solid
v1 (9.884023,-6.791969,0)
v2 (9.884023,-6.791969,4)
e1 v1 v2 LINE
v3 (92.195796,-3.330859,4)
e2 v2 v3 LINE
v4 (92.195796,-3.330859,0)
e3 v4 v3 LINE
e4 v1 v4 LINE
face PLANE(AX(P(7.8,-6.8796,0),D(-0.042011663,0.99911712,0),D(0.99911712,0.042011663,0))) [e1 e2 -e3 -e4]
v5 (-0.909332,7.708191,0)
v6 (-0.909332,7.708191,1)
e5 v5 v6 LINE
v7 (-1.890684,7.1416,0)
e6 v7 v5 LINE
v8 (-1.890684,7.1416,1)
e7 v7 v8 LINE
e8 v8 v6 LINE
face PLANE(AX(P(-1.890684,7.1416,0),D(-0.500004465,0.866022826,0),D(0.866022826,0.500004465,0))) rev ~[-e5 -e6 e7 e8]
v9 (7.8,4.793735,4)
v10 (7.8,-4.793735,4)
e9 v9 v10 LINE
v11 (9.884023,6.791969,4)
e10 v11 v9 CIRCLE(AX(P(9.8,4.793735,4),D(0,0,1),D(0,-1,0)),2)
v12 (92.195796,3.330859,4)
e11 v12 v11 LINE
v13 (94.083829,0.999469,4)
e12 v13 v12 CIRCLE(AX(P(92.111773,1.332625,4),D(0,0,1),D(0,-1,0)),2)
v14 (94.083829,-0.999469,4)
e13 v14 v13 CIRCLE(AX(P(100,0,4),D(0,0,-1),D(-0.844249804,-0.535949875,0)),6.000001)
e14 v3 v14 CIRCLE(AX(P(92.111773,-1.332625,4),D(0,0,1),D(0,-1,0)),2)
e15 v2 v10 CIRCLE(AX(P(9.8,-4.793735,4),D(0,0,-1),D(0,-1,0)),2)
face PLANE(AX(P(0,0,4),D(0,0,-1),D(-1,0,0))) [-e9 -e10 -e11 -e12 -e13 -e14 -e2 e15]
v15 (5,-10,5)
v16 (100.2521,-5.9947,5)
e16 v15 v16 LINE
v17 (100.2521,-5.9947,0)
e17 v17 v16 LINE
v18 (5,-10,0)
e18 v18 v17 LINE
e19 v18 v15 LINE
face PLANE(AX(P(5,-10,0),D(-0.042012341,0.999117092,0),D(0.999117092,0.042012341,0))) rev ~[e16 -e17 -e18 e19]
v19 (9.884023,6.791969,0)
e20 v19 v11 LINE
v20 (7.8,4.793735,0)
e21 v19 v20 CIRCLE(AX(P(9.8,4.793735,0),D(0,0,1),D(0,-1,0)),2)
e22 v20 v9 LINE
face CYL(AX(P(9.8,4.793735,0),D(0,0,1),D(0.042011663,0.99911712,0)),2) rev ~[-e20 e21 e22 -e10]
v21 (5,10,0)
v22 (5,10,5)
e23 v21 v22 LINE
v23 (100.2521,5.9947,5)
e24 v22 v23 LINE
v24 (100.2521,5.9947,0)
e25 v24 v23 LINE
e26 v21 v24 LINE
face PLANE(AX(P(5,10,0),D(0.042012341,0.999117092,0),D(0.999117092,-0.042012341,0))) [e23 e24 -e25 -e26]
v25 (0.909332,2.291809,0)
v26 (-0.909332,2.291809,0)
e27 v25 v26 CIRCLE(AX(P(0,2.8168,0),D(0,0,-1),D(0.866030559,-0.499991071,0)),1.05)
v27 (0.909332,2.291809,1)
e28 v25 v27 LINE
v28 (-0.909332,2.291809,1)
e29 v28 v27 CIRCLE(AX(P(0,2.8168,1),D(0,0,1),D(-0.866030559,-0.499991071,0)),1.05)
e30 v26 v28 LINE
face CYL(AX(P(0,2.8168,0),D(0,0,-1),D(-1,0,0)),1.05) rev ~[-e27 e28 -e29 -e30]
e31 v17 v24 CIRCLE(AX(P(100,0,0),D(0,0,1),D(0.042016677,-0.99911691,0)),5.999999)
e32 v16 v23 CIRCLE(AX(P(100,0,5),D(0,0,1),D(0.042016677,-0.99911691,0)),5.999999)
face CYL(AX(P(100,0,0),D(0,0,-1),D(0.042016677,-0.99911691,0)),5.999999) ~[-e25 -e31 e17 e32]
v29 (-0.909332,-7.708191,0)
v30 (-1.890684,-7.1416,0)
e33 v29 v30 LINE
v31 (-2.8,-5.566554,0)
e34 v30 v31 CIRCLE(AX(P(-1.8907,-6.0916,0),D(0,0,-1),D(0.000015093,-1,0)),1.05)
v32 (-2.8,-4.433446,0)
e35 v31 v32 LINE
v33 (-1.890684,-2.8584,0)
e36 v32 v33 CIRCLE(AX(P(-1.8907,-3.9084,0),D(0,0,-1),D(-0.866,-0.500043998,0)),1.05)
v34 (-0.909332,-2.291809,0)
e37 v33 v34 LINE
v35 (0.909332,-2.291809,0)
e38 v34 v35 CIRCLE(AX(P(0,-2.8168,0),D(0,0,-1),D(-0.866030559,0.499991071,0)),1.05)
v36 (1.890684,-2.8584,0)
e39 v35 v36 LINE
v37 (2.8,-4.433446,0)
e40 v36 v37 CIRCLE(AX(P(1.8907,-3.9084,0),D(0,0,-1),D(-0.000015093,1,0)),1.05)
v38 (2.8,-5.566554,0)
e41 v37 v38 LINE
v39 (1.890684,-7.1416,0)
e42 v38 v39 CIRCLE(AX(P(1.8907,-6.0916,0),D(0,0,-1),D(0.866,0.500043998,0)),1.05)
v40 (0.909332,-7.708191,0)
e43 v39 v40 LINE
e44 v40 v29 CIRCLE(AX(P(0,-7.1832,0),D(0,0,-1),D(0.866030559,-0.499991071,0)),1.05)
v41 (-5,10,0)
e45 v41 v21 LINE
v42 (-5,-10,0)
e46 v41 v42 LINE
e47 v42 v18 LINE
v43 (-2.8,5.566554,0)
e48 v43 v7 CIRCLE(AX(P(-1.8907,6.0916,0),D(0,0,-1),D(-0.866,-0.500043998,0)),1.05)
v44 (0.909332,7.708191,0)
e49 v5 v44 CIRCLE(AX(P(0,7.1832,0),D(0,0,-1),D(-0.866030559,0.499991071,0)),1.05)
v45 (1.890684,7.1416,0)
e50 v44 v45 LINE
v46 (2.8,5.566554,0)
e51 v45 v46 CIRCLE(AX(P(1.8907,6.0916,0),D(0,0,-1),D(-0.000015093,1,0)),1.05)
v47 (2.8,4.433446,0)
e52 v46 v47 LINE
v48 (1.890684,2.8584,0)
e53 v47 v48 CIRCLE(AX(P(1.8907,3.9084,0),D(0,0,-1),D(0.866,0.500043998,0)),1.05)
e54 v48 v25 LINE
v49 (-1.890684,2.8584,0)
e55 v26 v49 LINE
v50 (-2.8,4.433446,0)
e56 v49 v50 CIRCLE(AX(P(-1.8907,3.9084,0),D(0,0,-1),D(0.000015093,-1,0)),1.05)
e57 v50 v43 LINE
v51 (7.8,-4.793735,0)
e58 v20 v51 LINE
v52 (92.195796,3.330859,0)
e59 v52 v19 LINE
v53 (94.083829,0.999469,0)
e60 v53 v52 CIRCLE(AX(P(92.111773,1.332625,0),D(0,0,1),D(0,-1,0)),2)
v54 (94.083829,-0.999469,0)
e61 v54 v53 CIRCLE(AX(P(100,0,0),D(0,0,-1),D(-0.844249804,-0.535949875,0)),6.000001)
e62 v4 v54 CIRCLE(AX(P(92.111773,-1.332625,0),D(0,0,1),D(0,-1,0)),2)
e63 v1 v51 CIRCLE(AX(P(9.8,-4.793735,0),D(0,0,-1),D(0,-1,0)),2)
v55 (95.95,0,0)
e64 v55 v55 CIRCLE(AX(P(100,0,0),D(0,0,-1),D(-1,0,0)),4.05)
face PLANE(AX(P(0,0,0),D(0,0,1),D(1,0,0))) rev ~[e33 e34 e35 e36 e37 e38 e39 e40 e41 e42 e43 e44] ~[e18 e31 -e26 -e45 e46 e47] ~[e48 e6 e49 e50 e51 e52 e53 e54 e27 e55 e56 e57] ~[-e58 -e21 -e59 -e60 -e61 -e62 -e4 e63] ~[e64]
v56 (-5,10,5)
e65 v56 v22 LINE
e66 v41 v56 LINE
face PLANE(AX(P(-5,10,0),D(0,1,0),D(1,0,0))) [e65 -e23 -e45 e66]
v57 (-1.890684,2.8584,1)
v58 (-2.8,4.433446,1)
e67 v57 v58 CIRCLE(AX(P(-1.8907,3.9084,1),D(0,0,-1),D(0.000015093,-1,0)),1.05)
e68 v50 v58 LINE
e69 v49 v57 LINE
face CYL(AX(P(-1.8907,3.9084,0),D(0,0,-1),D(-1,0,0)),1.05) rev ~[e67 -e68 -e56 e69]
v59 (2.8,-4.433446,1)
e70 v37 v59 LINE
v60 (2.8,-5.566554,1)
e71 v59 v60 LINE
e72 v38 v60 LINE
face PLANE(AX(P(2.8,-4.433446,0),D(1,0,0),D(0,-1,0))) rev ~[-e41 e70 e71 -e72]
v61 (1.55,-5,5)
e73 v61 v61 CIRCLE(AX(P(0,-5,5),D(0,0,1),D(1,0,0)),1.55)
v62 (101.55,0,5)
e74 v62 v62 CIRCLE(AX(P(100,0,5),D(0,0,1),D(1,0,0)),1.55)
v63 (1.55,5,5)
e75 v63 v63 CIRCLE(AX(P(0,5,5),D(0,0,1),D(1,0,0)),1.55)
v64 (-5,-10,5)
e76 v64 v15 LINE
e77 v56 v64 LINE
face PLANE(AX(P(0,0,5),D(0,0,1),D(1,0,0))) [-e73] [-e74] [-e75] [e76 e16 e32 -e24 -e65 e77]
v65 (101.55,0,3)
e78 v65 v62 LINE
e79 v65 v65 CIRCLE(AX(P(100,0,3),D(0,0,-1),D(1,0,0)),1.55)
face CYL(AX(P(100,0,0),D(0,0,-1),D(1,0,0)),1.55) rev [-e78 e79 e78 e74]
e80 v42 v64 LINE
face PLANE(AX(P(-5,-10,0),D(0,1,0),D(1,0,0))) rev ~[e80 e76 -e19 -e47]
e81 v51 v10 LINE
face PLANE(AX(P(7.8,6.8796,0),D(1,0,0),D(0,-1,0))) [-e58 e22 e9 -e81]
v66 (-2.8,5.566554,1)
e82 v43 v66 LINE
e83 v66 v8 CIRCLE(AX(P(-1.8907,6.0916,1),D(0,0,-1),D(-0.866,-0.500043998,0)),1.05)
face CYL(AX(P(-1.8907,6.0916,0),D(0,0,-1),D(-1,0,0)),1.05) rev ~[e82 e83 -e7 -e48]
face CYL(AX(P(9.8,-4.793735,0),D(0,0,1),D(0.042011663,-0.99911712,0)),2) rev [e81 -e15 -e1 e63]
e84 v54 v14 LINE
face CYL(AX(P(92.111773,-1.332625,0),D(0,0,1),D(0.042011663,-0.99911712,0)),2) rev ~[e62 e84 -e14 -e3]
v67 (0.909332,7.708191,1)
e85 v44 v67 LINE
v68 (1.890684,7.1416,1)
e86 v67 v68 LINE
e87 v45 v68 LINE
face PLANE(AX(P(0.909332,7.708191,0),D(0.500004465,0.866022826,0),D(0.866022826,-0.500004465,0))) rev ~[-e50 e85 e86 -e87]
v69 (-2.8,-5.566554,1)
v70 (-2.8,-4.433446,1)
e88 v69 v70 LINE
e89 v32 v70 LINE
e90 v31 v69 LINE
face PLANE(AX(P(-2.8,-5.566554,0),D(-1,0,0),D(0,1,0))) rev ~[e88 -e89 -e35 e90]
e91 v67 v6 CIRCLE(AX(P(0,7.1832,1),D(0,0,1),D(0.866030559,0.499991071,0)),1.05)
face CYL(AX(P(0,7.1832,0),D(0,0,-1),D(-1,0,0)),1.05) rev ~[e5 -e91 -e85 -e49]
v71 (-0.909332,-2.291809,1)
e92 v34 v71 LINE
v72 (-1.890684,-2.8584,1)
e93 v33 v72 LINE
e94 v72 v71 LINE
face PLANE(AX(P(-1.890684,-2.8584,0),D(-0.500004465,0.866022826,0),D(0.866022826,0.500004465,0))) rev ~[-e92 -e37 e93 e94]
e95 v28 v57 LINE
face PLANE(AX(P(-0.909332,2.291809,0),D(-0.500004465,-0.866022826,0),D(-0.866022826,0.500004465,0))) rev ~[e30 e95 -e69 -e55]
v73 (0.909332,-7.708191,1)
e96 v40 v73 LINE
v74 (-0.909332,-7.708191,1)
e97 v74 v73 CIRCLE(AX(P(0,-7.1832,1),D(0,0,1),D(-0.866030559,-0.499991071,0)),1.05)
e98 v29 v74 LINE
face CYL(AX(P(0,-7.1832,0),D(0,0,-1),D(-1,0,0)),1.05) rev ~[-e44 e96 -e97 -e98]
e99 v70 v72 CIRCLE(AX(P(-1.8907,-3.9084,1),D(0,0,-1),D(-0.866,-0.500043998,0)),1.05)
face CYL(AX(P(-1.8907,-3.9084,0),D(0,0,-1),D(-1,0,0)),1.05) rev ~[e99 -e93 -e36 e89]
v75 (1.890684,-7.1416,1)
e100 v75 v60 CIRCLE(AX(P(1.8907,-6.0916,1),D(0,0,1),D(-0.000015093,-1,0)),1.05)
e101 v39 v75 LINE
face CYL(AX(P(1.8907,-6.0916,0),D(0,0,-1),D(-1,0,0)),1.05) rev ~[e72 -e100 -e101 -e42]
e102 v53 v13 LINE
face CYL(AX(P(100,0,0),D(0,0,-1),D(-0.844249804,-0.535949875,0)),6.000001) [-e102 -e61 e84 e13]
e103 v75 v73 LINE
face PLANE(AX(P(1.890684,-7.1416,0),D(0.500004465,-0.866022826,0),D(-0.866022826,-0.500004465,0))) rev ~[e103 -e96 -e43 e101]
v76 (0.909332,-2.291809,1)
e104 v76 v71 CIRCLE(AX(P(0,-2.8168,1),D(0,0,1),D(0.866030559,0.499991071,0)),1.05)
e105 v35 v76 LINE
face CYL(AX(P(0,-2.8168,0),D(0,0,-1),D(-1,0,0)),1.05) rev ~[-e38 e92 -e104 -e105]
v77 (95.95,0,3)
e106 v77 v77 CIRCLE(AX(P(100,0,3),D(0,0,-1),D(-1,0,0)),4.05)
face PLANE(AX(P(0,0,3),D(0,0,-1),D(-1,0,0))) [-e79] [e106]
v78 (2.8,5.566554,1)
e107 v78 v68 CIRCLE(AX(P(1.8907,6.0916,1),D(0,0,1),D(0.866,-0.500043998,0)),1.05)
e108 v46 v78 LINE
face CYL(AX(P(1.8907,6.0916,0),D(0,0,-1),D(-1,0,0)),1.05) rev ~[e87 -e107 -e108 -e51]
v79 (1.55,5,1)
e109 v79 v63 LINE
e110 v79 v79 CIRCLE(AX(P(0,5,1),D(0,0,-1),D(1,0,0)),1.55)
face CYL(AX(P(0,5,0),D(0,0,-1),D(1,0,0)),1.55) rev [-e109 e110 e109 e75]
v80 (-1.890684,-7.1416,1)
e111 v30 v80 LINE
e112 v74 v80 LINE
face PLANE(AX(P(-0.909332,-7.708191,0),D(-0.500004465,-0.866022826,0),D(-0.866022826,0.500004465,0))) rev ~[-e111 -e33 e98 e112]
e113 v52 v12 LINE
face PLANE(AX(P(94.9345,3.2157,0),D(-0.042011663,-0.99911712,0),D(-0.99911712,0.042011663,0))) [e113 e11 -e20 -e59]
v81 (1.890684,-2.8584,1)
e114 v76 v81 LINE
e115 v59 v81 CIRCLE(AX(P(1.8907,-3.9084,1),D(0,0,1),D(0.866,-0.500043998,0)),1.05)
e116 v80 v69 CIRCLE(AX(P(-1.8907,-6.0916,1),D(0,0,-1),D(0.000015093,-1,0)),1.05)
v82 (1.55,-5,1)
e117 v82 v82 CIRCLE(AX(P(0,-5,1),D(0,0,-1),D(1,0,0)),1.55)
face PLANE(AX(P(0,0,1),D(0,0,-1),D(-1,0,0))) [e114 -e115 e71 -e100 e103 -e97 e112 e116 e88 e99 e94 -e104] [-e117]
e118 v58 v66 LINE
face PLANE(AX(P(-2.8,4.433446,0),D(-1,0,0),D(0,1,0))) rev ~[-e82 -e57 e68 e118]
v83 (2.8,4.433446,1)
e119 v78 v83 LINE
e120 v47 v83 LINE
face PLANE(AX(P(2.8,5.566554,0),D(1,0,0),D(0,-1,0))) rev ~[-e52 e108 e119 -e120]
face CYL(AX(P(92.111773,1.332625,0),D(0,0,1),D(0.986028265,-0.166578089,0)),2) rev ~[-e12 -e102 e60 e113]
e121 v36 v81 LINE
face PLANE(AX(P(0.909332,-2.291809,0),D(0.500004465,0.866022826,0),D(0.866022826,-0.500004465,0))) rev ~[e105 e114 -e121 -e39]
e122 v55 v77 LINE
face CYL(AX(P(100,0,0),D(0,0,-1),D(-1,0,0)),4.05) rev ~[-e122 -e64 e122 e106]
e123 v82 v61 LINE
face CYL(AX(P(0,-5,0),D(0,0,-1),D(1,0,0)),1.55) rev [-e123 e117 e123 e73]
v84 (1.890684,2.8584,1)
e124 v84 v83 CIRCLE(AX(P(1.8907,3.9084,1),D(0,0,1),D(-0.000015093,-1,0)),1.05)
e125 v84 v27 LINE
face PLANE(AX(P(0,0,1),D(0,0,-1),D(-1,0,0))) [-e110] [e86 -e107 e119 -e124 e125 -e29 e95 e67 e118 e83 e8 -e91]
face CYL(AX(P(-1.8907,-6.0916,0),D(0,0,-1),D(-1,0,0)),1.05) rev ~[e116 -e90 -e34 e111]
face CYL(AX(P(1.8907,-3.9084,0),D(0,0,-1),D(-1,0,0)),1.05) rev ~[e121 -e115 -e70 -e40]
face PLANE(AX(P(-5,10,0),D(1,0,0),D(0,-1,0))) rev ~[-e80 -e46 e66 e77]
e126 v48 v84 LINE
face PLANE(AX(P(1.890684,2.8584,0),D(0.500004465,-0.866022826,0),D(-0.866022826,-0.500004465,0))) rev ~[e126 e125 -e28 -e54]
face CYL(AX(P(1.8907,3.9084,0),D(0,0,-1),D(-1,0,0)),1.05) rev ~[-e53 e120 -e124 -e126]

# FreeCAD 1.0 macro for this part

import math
import FreeCAD as App
import Part
import Sketcher
Q = App.Units.Quantity


def edges_at(feature, points):
    """Names of the edges that pass closest to the given points."""
    edges = feature.Shape.Edges
    near = lambda p: min(range(len(edges)), key=lambda i: edges[i].distToShape(Part.Vertex(*p))[0])
    return sorted({f"Edge{near(p) + 1}" for p in points})

doc = App.newDocument("Part")
body = doc.addObject("PartDesign::Body", "Body")

# Sketch on XY plane
sketch1 = body.newObject("Sketcher::SketchObject", "Sketch")
sketch1.AttachmentSupport = (doc.getObject("XY_Plane"), [""])
sketch1.MapMode = "FlatFace"
sketch1.addGeometry([
    Part.LineSegment(App.Vector(5, 10, 0), App.Vector(-5, 10, 0)),  # 0
    Part.LineSegment(App.Vector(-5, 10, 0), App.Vector(-5, -10, 0)),  # 1
    Part.LineSegment(App.Vector(-5, -10, 0), App.Vector(5, -10, 0)),  # 2
    Part.LineSegment(App.Vector(5, -10, 0), App.Vector(100.3, -6, 0)),  # 3
    Part.ArcOfCircle(Part.Circle(App.Vector(100, 0, 0), App.Vector(0, 0, 1), 6), math.radians(-88), math.radians(88)),  # 4
    Part.LineSegment(App.Vector(100.3, 6, 0), App.Vector(5, 10, 0)),  # 5
    Part.Circle(App.Vector(0, -5, 0), App.Vector(0, 0, 1), 1.6),  # 6
    Part.Circle(App.Vector(0, 5, 0), App.Vector(0, 0, 1), 1.6),  # 7
    Part.Circle(App.Vector(100, 0, 0), App.Vector(0, 0, 1), 1.6),  # 8
], False)
sketch1.addConstraint([
    Sketcher.Constraint("Coincident", 0, 2, 1, 1),
    Sketcher.Constraint("Coincident", 1, 2, 2, 1),
    Sketcher.Constraint("Coincident", 2, 2, 3, 1),
    Sketcher.Constraint("Tangent", 3, 2, 4, 1),
    Sketcher.Constraint("Tangent", 4, 2, 5, 1),
    Sketcher.Constraint("Coincident", 5, 2, 0, 1),
    Sketcher.Constraint("Horizontal", 0),
    Sketcher.Constraint("Vertical", 1),
    Sketcher.Constraint("Horizontal", 2),
    Sketcher.Constraint("Coincident", 8, 3, 4, 3),
    Sketcher.Constraint("Equal", 6, 7),
    Sketcher.Constraint("Equal", 7, 8),
    Sketcher.Constraint("Symmetric", 6, 3, 7, 3, -1, 1),
    Sketcher.Constraint("Symmetric", 0, 2, 2, 2, -1, 1),
    Sketcher.Constraint("Symmetric", 3, 2, 4, 2, -1),
    Sketcher.Constraint("PointOnObject", 6, 3, -2),
    Sketcher.Constraint("Radius", 4, Q("6 mm")),
    Sketcher.Constraint("Diameter", 6, Q("3.1 mm")),
    Sketcher.Constraint("DistanceX", 0, 2, 0, 1, Q("10 mm")),
    Sketcher.Constraint("DistanceX", -1, 1, 4, 3, Q("100 mm")),
    Sketcher.Constraint("DistanceY", -1, 1, 0, 2, Q("10 mm")),
    Sketcher.Constraint("DistanceY", 6, 3, 7, 3, Q("10 mm")),
])
pad1 = body.newObject("PartDesign::Pad", "Pad")
pad1.Profile = sketch1
pad1.Length = 5

# Sketch on XY plane
sketch2 = body.newObject("Sketcher::SketchObject", "Sketch001")
sketch2.AttachmentSupport = (doc.getObject("XY_Plane"), [""])
sketch2.MapMode = "FlatFace"
sketch2.addGeometry([
    Part.Circle(App.Vector(100, 0, 0), App.Vector(0, 0, 1), 4),
    Part.Circle(App.Vector(100, 0, 0), App.Vector(0, 0, 1), 1.6),
], False)
sketch2.addConstraint([
    Sketcher.Constraint("Coincident", 1, 3, 0, 3),
    Sketcher.Constraint("PointOnObject", 0, 3, -1),
    Sketcher.Constraint("Diameter", 0, Q("8.1 mm")),
    Sketcher.Constraint("Diameter", 1, Q("3.1 mm")),
    Sketcher.Constraint("DistanceX", -1, 1, 0, 3, Q("100 mm")),
])
pocket1 = body.newObject("PartDesign::Pocket", "Pocket")
pocket1.Profile = sketch2
pocket1.Length = 3
pocket1.Reversed = True

# Sketch on XY plane
sketch3 = body.newObject("Sketcher::SketchObject", "Sketch002")
sketch3.AttachmentSupport = (doc.getObject("XY_Plane"), [""])
sketch3.MapMode = "FlatFace"
sketch3.addGeometry([
    Part.LineSegment(App.Vector(-2.8, -5.6, 0), App.Vector(-2.8, -4.4, 0)),  # 0
    Part.ArcOfCircle(Part.Circle(App.Vector(-1.9, -3.9, 0), App.Vector(0, 0, 1), 1.1), math.radians(90), math.radians(210)),  # 1
    Part.LineSegment(App.Vector(-1.9, -2.9, 0), App.Vector(-0.9, -2.3, 0)),  # 2
    Part.ArcOfCircle(Part.Circle(App.Vector(0, -2.8, 0), App.Vector(0, 0, 1), 1.1), math.radians(30), math.radians(150)),  # 3
    Part.LineSegment(App.Vector(0.9, -2.3, 0), App.Vector(1.9, -2.9, 0)),  # 4
    Part.ArcOfCircle(Part.Circle(App.Vector(1.9, -3.9, 0), App.Vector(0, 0, 1), 1.1), math.radians(-30), math.radians(90)),  # 5
    Part.LineSegment(App.Vector(2.8, -4.4, 0), App.Vector(2.8, -5.6, 0)),  # 6
    Part.ArcOfCircle(Part.Circle(App.Vector(1.9, -6.1, 0), App.Vector(0, 0, 1), 1.1), math.radians(-90), math.radians(30)),  # 7
    Part.LineSegment(App.Vector(1.9, -7.1, 0), App.Vector(0.9, -7.7, 0)),  # 8
    Part.ArcOfCircle(Part.Circle(App.Vector(0, -7.2, 0), App.Vector(0, 0, 1), 1.1), math.radians(-150), math.radians(-30)),  # 9
    Part.LineSegment(App.Vector(-0.9, -7.7, 0), App.Vector(-1.9, -7.1, 0)),  # 10
    Part.ArcOfCircle(Part.Circle(App.Vector(-1.9, -6.1, 0), App.Vector(0, 0, 1), 1.1), math.radians(150), math.radians(270)),  # 11
    Part.LineSegment(App.Vector(-2.8, 4.4, 0), App.Vector(-2.8, 5.6, 0)),  # 12
    Part.ArcOfCircle(Part.Circle(App.Vector(-1.9, 6.1, 0), App.Vector(0, 0, 1), 1.1), math.radians(90), math.radians(210)),  # 13
    Part.LineSegment(App.Vector(-1.9, 7.1, 0), App.Vector(-0.9, 7.7, 0)),  # 14
    Part.ArcOfCircle(Part.Circle(App.Vector(0, 7.2, 0), App.Vector(0, 0, 1), 1.1), math.radians(30), math.radians(150)),  # 15
    Part.LineSegment(App.Vector(0.9, 7.7, 0), App.Vector(1.9, 7.1, 0)),  # 16
    Part.ArcOfCircle(Part.Circle(App.Vector(1.9, 6.1, 0), App.Vector(0, 0, 1), 1.1), math.radians(-30), math.radians(90)),  # 17
    Part.LineSegment(App.Vector(2.8, 5.6, 0), App.Vector(2.8, 4.4, 0)),  # 18
    Part.ArcOfCircle(Part.Circle(App.Vector(1.9, 3.9, 0), App.Vector(0, 0, 1), 1.1), math.radians(-90), math.radians(30)),  # 19
    Part.LineSegment(App.Vector(1.9, 2.9, 0), App.Vector(0.9, 2.3, 0)),  # 20
    Part.ArcOfCircle(Part.Circle(App.Vector(0, 2.8, 0), App.Vector(0, 0, 1), 1.1), math.radians(-150), math.radians(-30)),  # 21
    Part.LineSegment(App.Vector(-0.9, 2.3, 0), App.Vector(-1.9, 2.9, 0)),  # 22
    Part.ArcOfCircle(Part.Circle(App.Vector(-1.9, 3.9, 0), App.Vector(0, 0, 1), 1.1), math.radians(150), math.radians(270)),  # 23
], False)
sketch3.addConstraint([
    Sketcher.Constraint("Coincident", 0, 2, 1, 2),
    Sketcher.Constraint("Coincident", 1, 1, 2, 1),
    Sketcher.Constraint("Coincident", 2, 2, 3, 2),
    Sketcher.Constraint("Coincident", 3, 1, 4, 1),
    Sketcher.Constraint("Coincident", 4, 2, 5, 2),
    Sketcher.Constraint("Coincident", 5, 1, 6, 1),
    Sketcher.Constraint("Coincident", 6, 2, 7, 2),
    Sketcher.Constraint("Coincident", 7, 1, 8, 1),
    Sketcher.Constraint("Coincident", 8, 2, 9, 2),
    Sketcher.Constraint("Coincident", 9, 1, 10, 1),
    Sketcher.Constraint("Coincident", 10, 2, 11, 2),
    Sketcher.Constraint("Coincident", 11, 1, 0, 1),
    Sketcher.Constraint("Coincident", 12, 2, 13, 2),
    Sketcher.Constraint("Coincident", 13, 1, 14, 1),
    Sketcher.Constraint("Coincident", 14, 2, 15, 2),
    Sketcher.Constraint("Coincident", 15, 1, 16, 1),
    Sketcher.Constraint("Coincident", 16, 2, 17, 2),
    Sketcher.Constraint("Coincident", 17, 1, 18, 1),
    Sketcher.Constraint("Coincident", 18, 2, 19, 2),
    Sketcher.Constraint("Coincident", 19, 1, 20, 1),
    Sketcher.Constraint("Coincident", 20, 2, 21, 2),
    Sketcher.Constraint("Coincident", 21, 1, 22, 1),
    Sketcher.Constraint("Coincident", 22, 2, 23, 2),
    Sketcher.Constraint("Coincident", 23, 1, 12, 1),
    Sketcher.Constraint("Vertical", 0),
    Sketcher.Constraint("Vertical", 6),
    Sketcher.Constraint("Vertical", 12),
    Sketcher.Constraint("Vertical", 18),
    Sketcher.Constraint("Equal", 1, 3),
    Sketcher.Constraint("Equal", 3, 5),
    Sketcher.Constraint("Equal", 5, 7),
    Sketcher.Constraint("Equal", 7, 9),
    Sketcher.Constraint("Equal", 9, 11),
    Sketcher.Constraint("Equal", 11, 13),
    Sketcher.Constraint("Equal", 13, 15),
    Sketcher.Constraint("Equal", 15, 17),
    Sketcher.Constraint("Equal", 17, 19),
    Sketcher.Constraint("Equal", 19, 21),
    Sketcher.Constraint("Equal", 21, 23),
    Sketcher.Constraint("Symmetric", 7, 3, 13, 3, -1, 1),
    Sketcher.Constraint("Symmetric", 9, 3, 15, 3, -1, 1),
    Sketcher.Constraint("Symmetric", 11, 3, 17, 3, -1, 1),
    Sketcher.Constraint("Symmetric", 1, 3, 19, 3, -1, 1),
    Sketcher.Constraint("Symmetric", 3, 3, 21, 3, -1, 1),
    Sketcher.Constraint("Symmetric", 5, 3, 23, 3, -1, 1),
    Sketcher.Constraint("Symmetric", 1, 3, 5, 3, -2),
    Sketcher.Constraint("Symmetric", 7, 3, 11, 3, -2),
    Sketcher.Constraint("Symmetric", 2, 2, 3, 1, -2),
    Sketcher.Constraint("Symmetric", 8, 2, 9, 1, -2),
    Sketcher.Constraint("Parallel", 2, 8),
    Sketcher.Constraint("Parallel", 4, 10),
    Sketcher.Constraint("Parallel", 8, 14),
    Sketcher.Constraint("Parallel", 10, 16),
    Sketcher.Constraint("Parallel", 14, 20),
    Sketcher.Constraint("Parallel", 16, 22),
    Sketcher.Constraint("Horizontal", 0, 2, 5, 1),
    Sketcher.Constraint("Horizontal", 14, 2, 15, 1),
    Sketcher.Constraint("Horizontal", 12, 2, 17, 1),
    Sketcher.Constraint("Horizontal", 20, 2, 21, 1),
    Sketcher.Constraint("Vertical", 5, 3, 7, 3),
    Sketcher.Constraint("Vertical", 23, 3, 1, 1),
    Sketcher.Constraint("Vertical", 19, 3, 4, 2),
    Sketcher.Constraint("Vertical", 4, 2, 7, 1),
    Sketcher.Constraint("Vertical", 3, 1, 8, 2),
    Sketcher.Constraint("Vertical", 11, 1, 12, 2),
    Sketcher.Constraint("Vertical", 10, 2, 13, 1),
    Sketcher.Constraint("Vertical", 16, 2, 19, 1),
    Sketcher.Constraint("Radius", 1, Q("1.05 mm")),
    Sketcher.Constraint("Angle", 2, Q("30.0003 deg")),
    Sketcher.Constraint("DistanceY", 1, 3, 13, 3, Q("10 mm")),
    Sketcher.Constraint("DistanceX", 0, 2, -1, 1, Q("2.8 mm")),
    Sketcher.Constraint("DistanceX", 2, 2, 5, 3, Q("2.8 mm")),
    Sketcher.Constraint("DistanceY", 0, 1, 0, 2, Q("1.133 mm")),
    Sketcher.Constraint("DistanceY", 0, 2, 1, 3, Q("0.525 mm")),
])
pocket2 = body.newObject("PartDesign::Pocket", "Pocket001")
pocket2.Profile = sketch3
pocket2.Length = 1
pocket2.Reversed = True

# Sketch on XY plane
sketch4 = body.newObject("Sketcher::SketchObject", "Sketch003")
sketch4.AttachmentSupport = (doc.getObject("XY_Plane"), [""])
sketch4.MapMode = "FlatFace"
sketch4.addGeometry([
    Part.LineSegment(App.Vector(95, -3, 0), App.Vector(8, -7, 0)),
    Part.LineSegment(App.Vector(8, -7, 0), App.Vector(8, 7, 0)),
    Part.LineSegment(App.Vector(8, 7, 0), App.Vector(95, 3, 0)),
    Part.ArcOfCircle(Part.Circle(App.Vector(100, 0, 0), App.Vector(0, 0, 1), 6), math.radians(148), math.radians(212)),
], False)
sketch4.addConstraint([
    Sketcher.Constraint("Coincident", 0, 2, 1, 1),
    Sketcher.Constraint("Coincident", 1, 2, 2, 1),
    Sketcher.Constraint("Coincident", 2, 2, 3, 1),
    Sketcher.Constraint("Coincident", 3, 2, 0, 1),
    Sketcher.Constraint("Vertical", 1),
    Sketcher.Constraint("Symmetric", 2, 2, 3, 2, -1),
    Sketcher.Constraint("Equal", 0, 2),
    Sketcher.Constraint("Radius", 3, Q("6 mm")),
    Sketcher.Constraint("DistanceX", -1, 1, 3, 3, Q("100 mm")),
    Sketcher.Constraint("DistanceX", -1, 1, 0, 2, Q("7.8 mm")),
    Sketcher.Constraint("DistanceY", 1, 1, 1, 2, Q("13.7592 mm")),
    Sketcher.Constraint("DistanceY", 2, 2, 1, 2, Q("3.664 mm")),
])
pocket3 = body.newObject("PartDesign::Pocket", "Pocket002")
pocket3.Profile = sketch4
pocket3.Length = 4
pocket3.Reversed = True
doc.recompute()

fillet = body.newObject("PartDesign::Fillet", "Fillet")
fillet.Base = (pocket3, edges_at(pocket3, [
    (7.8, 6.88, 2),
    (7.8, -6.88, 2),
    (94.934, 3.216, 2),
    (94.934, -3.216, 2),
]))
fillet.Radius = 2

doc.recompute()
